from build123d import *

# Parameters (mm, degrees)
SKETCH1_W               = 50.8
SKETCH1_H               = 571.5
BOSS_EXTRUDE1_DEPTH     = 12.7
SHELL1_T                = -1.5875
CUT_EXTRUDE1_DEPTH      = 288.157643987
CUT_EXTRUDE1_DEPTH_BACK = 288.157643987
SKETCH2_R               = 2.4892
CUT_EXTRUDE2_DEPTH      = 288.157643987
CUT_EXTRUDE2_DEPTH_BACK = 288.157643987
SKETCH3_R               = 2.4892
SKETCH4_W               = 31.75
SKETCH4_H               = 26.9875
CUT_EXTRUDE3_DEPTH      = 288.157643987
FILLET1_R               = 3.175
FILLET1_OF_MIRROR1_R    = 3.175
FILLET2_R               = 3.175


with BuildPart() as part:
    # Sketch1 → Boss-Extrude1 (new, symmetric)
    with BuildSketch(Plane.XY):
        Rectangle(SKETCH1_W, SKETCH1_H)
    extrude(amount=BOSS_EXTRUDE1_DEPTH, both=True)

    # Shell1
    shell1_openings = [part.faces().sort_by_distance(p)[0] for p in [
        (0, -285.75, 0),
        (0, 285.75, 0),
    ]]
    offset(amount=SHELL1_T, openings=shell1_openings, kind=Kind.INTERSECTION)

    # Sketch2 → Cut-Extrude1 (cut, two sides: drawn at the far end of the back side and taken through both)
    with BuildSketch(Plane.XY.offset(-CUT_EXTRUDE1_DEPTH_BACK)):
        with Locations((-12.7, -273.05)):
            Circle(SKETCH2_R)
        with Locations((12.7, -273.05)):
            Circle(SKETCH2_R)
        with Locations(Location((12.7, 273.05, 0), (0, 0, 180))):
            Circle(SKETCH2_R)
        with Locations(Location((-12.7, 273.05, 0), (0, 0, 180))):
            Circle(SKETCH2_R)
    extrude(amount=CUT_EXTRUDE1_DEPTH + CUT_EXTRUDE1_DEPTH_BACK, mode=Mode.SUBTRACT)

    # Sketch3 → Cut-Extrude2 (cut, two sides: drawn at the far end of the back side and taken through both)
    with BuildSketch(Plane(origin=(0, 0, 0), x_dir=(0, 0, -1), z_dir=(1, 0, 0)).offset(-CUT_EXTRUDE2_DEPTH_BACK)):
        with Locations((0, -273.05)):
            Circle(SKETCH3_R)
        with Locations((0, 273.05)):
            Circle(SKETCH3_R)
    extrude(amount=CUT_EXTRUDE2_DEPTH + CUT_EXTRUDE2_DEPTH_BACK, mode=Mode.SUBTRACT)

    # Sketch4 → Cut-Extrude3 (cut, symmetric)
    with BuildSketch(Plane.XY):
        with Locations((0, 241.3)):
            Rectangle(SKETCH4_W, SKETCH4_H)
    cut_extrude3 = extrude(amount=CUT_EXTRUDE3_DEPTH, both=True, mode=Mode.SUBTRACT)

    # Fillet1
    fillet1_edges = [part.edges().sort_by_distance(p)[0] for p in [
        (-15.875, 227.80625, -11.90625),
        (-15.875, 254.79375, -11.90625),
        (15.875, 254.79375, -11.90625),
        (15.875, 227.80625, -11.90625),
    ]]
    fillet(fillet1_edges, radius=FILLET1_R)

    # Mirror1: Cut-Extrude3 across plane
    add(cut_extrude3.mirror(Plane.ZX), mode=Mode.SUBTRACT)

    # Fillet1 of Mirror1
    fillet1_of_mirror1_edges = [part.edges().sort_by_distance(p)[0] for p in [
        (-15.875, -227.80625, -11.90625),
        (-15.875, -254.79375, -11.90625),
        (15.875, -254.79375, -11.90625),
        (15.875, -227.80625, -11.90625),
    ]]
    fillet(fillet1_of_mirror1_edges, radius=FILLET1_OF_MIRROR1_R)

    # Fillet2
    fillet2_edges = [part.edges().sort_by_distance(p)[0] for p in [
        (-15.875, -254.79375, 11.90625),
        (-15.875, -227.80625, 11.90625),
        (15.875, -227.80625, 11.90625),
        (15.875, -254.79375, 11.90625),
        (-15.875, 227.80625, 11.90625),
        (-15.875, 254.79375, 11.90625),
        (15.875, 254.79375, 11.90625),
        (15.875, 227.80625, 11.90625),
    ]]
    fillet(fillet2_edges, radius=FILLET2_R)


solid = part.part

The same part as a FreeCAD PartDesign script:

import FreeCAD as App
import Part
import Sketcher

V = App.Vector
Q = App.Units.Quantity


def edges_at(feature, points):
    """Names of the edges that pass closest to the given points."""
    edges = feature.Shape.Edges
    near = lambda p: min(range(len(edges)), key=lambda i: edges[i].distToShape(Part.Vertex(*p))[0])
    return sorted({f"Edge{near(p) + 1}" for p in points})


def faces_at(feature, points):
    """Names of the faces that lie closest to the given points."""
    faces = feature.Shape.Faces
    near = lambda p: min(range(len(faces)), key=lambda i: faces[i].distToShape(Part.Vertex(*p))[0])
    return sorted({f"Face{near(p) + 1}" for p in points})


def add_polygon(sketch, points):
    """Adds a closed chain of lines whose ends are joined by coincident constraints."""
    first, n = sketch.GeometryCount, len(points)
    for a, b in zip(points, points[1:] + points[:1]):
        sketch.addGeometry(Part.LineSegment(App.Vector(*a, 0), App.Vector(*b, 0)), False)
    for i in range(n):
        sketch.addConstraint(Sketcher.Constraint("Coincident", first + i, 2, first + (i + 1) % n, 1))

doc = App.newDocument("Part")
body = doc.addObject("PartDesign::Body", "Body")

sketch1 = body.newObject("Sketcher::SketchObject", "Sketch")
sketch1.AttachmentSupport = (doc.getObject("XY_Plane"), [""])
sketch1.MapMode = "FlatFace"
add_polygon(sketch1, [(-25, 286), (-25, -286), (25, -286), (25, 286)])
sketch1.addConstraint(Sketcher.Constraint("Vertical", 0))
sketch1.addConstraint(Sketcher.Constraint("Horizontal", 1))
sketch1.addConstraint(Sketcher.Constraint("Vertical", 2))
sketch1.addConstraint(Sketcher.Constraint("Horizontal", 3))
sketch1.addConstraint(Sketcher.Constraint("Symmetric", 0, 2, 2, 2, -1, 1))
sketch1.addConstraint(Sketcher.Constraint("DistanceX", 1, 1, 1, 2, Q("2 in")))
sketch1.addConstraint(Sketcher.Constraint("DistanceY", 0, 2, 0, 1, Q("22.5 in")))
pad1 = body.newObject("PartDesign::Pad", "Pad")
pad1.Profile = sketch1
pad1.Length = Q("1 in")
pad1.Midplane = True
doc.recompute()

thickness = body.newObject("PartDesign::Thickness", "Thickness")
thickness.Base = (pad1, faces_at(pad1, [(0, -285.75, 0), (0, 285.75, 0)]))
thickness.Value = Q("0.0625 in")
thickness.Reversed = True
thickness.Join = "Intersection"

sketch2 = body.newObject("Sketcher::SketchObject", "Sketch001")
sketch2.AttachmentSupport = (doc.getObject("XY_Plane"), [""])
sketch2.MapMode = "FlatFace"
sketch2.addGeometry(Part.Circle(V(-12.7, -273.1, 0), V(0, 0, 1), 2.5), False)
sketch2.addGeometry(Part.Circle(V(12.7, -273.1, 0), V(0, 0, 1), 2.5), False)
sketch2.addGeometry(Part.Circle(V(12.7, 273.1, 0), V(0, 0, 1), 2.5), False)
sketch2.addGeometry(Part.Circle(V(-12.7, 273.1, 0), V(0, 0, 1), 2.5), False)
sketch2.addConstraint(Sketcher.Constraint("Equal", 0, 1))
sketch2.addConstraint(Sketcher.Constraint("Equal", 1, 2))
sketch2.addConstraint(Sketcher.Constraint("Equal", 2, 3))
sketch2.addConstraint(Sketcher.Constraint("Symmetric", 0, 3, 2, 3, -1, 1))
sketch2.addConstraint(Sketcher.Constraint("Symmetric", 1, 3, 3, 3, -1, 1))
sketch2.addConstraint(Sketcher.Constraint("Symmetric", 0, 3, 1, 3, -2))
sketch2.addConstraint(Sketcher.Constraint("Diameter", 0, Q("0.196 in")))
sketch2.addConstraint(Sketcher.Constraint("DistanceX", 0, 3, 1, 3, Q("1 in")))
sketch2.addConstraint(Sketcher.Constraint("DistanceY", 1, 3, 2, 3, Q("21.5 in")))
pocket1 = body.newObject("PartDesign::Pocket", "Pocket")
pocket1.Profile = sketch2
pocket1.Type = "ThroughAll"
pocket1.Midplane = True

sketch3 = body.newObject("Sketcher::SketchObject", "Sketch002")
sketch3.AttachmentSupport = (doc.getObject("YZ_Plane"), [""])
sketch3.MapMode = "FlatFace"
sketch3.addGeometry(Part.Circle(V(-273.1, 0, 0), V(0, 0, 1), 2.5), False)
sketch3.addGeometry(Part.Circle(V(273.1, 0, 0), V(0, 0, 1), 2.5), False)
sketch3.addConstraint(Sketcher.Constraint("Equal", 0, 1))
sketch3.addConstraint(Sketcher.Constraint("Symmetric", 0, 3, 1, 3, -1, 1))
sketch3.addConstraint(Sketcher.Constraint("PointOnObject", 0, 3, -1))
sketch3.addConstraint(Sketcher.Constraint("Diameter", 0, Q("0.196 in")))
sketch3.addConstraint(Sketcher.Constraint("DistanceX", 0, 3, 1, 3, Q("21.5 in")))
pocket2 = body.newObject("PartDesign::Pocket", "Pocket001")
pocket2.Profile = sketch3
pocket2.Type = "ThroughAll"
pocket2.Midplane = True

sketch4 = body.newObject("Sketcher::SketchObject", "Sketch003")
sketch4.AttachmentSupport = (doc.getObject("XY_Plane"), [""])
sketch4.MapMode = "FlatFace"
add_polygon(sketch4, [(-16, 255), (-16, 228), (16, 228), (16, 255)])
sketch4.addConstraint(Sketcher.Constraint("Vertical", 0))
sketch4.addConstraint(Sketcher.Constraint("Horizontal", 1))
sketch4.addConstraint(Sketcher.Constraint("Vertical", 2))
sketch4.addConstraint(Sketcher.Constraint("Horizontal", 3))
sketch4.addConstraint(Sketcher.Constraint("DistanceX", 1, 1, 1, 2, Q("1.25 in")))
sketch4.addConstraint(Sketcher.Constraint("DistanceY", 0, 2, 0, 1, Q("1.0625 in")))
sketch4.addConstraint(Sketcher.Constraint("DistanceX", 0, 2, -1, 1, Q("0.625 in")))
sketch4.addConstraint(Sketcher.Constraint("DistanceY", -1, 1, 0, 2, Q("8.96875 in")))
pocket3 = body.newObject("PartDesign::Pocket", "Pocket002")
pocket3.Profile = sketch4
pocket3.Length = 576.315288
pocket3.Midplane = True
doc.recompute()

fillet = body.newObject("PartDesign::Fillet", "Fillet")
fillet.Base = (pocket3, edges_at(pocket3, [
    (-15.875, 227.806, -11.906),
    (-15.875, 254.794, -11.906),
    (15.875, 254.794, -11.906),
    (15.875, 227.806, -11.906),
]))
fillet.Radius = Q("0.125 in")
doc.recompute()

mirrored = body.newObject("PartDesign::Mirrored", "Mirrored")
mirrored.Originals = [pocket3]
mirrored.MirrorPlane = (doc.getObject("XZ_Plane"), [""])
body.Tip = mirrored
doc.recompute()

fillet2 = body.newObject("PartDesign::Fillet", "Fillet001")
fillet2.Base = (mirrored, edges_at(mirrored, [
    (-15.875, -227.806, -11.906),
    (-15.875, -254.794, -11.906),
    (15.875, -254.794, -11.906),
    (15.875, -227.806, -11.906),
]))
fillet2.Radius = Q("0.125 in")
doc.recompute()

fillet3 = body.newObject("PartDesign::Fillet", "Fillet002")
fillet3.Base = (fillet2, edges_at(fillet2, [
    (-15.875, -254.794, 11.906),
    (-15.875, -227.806, 11.906),
    (15.875, -227.806, 11.906),
    (15.875, -254.794, 11.906),
    (-15.875, 227.806, 11.906),
    (-15.875, 254.794, 11.906),
    (15.875, 254.794, 11.906),
    (15.875, 227.806, 11.906),
]))
fillet3.Radius = Q("0.125 in")

doc.recompute()
